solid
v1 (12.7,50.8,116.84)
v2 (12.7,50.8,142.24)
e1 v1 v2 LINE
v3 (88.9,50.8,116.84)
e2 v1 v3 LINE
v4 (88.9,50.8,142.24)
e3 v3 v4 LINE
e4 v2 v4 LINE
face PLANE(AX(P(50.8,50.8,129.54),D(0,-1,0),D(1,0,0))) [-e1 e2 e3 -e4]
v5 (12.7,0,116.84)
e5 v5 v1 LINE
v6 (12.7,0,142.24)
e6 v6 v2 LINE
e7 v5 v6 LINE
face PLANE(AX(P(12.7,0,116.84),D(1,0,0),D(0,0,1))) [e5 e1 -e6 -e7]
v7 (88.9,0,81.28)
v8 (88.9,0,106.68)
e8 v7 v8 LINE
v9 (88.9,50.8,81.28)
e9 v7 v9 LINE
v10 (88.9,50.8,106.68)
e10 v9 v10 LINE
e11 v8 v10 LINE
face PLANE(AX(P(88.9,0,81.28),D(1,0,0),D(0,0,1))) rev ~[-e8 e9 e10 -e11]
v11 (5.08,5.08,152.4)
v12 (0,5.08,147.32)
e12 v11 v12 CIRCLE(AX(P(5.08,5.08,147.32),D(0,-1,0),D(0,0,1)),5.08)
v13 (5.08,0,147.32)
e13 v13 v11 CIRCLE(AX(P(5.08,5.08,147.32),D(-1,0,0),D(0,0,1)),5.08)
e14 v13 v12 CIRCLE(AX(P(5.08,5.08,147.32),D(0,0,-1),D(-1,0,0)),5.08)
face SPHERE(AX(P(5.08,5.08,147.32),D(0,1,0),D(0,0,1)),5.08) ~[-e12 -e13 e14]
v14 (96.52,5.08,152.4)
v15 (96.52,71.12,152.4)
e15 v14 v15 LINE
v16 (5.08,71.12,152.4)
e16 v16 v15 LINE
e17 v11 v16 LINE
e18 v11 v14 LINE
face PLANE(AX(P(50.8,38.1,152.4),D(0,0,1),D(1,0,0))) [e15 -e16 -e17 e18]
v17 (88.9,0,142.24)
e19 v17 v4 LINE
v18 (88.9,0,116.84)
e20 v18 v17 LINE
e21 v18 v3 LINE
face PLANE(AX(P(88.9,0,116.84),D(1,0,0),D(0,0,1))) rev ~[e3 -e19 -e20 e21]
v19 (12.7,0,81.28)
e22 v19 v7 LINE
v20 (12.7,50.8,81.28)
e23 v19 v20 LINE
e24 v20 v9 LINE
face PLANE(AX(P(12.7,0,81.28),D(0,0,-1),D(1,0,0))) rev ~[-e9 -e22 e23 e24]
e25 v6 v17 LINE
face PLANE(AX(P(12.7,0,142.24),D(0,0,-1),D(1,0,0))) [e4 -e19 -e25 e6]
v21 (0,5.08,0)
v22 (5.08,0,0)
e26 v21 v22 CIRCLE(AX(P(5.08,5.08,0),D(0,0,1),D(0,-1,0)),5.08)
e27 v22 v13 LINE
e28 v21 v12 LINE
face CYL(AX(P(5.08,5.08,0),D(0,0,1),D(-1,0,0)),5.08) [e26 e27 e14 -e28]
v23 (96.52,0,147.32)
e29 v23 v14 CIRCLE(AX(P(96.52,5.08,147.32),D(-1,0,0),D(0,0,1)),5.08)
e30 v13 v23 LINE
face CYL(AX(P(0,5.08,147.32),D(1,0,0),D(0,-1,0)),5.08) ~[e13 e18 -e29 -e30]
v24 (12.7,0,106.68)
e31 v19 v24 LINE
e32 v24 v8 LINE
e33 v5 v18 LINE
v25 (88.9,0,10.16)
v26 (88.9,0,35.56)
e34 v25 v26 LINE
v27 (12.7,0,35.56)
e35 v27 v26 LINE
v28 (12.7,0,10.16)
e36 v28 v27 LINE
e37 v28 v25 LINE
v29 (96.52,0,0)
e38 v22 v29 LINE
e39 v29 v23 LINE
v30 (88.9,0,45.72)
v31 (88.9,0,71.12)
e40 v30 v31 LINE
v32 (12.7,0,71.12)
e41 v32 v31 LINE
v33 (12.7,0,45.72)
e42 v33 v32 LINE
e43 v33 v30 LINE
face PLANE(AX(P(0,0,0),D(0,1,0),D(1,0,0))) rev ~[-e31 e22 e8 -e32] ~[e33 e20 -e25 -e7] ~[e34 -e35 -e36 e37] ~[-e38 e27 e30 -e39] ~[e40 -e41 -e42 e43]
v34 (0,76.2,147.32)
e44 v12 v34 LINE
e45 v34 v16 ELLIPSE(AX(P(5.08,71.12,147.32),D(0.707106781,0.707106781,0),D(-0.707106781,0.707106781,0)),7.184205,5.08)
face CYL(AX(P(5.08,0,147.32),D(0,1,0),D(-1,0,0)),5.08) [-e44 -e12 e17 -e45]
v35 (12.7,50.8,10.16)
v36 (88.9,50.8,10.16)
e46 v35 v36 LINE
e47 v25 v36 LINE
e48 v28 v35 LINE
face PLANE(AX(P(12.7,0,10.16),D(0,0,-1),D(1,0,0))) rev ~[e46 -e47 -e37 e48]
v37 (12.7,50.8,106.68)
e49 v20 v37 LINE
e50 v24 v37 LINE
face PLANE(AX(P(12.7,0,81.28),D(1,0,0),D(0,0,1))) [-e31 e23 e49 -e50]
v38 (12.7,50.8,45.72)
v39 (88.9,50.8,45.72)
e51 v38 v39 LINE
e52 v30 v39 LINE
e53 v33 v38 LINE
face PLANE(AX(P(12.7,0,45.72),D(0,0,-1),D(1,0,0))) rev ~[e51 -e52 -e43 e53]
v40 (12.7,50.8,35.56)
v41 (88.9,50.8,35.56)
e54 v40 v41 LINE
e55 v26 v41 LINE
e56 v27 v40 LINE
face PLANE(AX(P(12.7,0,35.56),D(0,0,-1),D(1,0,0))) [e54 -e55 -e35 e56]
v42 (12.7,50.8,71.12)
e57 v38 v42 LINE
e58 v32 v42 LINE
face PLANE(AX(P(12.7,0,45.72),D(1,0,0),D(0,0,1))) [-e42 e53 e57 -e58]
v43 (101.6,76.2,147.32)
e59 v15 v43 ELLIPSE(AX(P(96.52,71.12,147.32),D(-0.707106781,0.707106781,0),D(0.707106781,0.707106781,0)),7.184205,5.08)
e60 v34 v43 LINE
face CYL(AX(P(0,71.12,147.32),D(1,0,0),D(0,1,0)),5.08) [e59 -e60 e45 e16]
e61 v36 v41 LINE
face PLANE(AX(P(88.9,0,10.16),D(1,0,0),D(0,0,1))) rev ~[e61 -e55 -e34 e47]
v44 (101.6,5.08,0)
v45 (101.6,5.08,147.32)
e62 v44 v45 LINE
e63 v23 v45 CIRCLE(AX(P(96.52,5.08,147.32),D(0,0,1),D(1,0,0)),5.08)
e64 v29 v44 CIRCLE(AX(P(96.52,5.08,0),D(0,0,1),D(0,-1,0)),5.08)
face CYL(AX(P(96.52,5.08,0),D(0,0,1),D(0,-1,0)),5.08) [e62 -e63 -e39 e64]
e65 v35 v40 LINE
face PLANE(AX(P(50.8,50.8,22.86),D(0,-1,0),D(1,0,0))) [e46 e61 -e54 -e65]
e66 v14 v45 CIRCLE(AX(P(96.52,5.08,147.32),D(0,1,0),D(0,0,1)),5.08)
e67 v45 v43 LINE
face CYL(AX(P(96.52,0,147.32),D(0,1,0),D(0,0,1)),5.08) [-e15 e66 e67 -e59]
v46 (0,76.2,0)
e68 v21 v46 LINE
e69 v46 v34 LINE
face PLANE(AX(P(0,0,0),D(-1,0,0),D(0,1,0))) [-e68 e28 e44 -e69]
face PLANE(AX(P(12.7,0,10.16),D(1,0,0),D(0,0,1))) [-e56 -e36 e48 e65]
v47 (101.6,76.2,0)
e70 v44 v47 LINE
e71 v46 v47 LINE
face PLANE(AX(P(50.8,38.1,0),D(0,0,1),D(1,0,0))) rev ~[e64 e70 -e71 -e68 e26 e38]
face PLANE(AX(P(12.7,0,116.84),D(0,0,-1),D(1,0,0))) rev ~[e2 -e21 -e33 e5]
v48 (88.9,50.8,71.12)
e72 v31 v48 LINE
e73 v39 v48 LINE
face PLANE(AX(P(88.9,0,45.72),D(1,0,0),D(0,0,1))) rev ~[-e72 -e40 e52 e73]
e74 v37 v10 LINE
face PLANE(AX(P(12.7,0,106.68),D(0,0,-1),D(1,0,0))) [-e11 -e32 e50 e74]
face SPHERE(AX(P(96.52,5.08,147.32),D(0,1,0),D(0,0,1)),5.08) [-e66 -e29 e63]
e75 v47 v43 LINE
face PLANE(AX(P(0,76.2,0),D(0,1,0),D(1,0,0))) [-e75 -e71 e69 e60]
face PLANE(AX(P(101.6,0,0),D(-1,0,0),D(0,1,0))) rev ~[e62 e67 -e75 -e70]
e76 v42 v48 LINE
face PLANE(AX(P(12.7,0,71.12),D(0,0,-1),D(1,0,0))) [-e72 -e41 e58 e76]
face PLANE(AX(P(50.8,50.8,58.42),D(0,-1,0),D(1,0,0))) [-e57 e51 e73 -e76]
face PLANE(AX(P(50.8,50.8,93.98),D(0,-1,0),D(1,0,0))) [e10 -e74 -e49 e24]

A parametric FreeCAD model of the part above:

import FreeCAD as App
import Part
import Sketcher

V = App.Vector
Q = App.Units.Quantity


def edges_at(feature, points):
    """Names of the edges that pass closest to the given points."""
    edges = feature.Shape.Edges
    near = lambda p: min(range(len(edges)), key=lambda i: edges[i].distToShape(Part.Vertex(*p))[0])
    return sorted({f"Edge{near(p) + 1}" for p in points})


def add_polygon(sketch, points):
    """Adds a closed chain of lines whose ends are joined by coincident constraints."""
    first, n = sketch.GeometryCount, len(points)
    for a, b in zip(points, points[1:] + points[:1]):
        sketch.addGeometry(Part.LineSegment(App.Vector(*a, 0), App.Vector(*b, 0)), False)
    for i in range(n):
        sketch.addConstraint(Sketcher.Constraint("Coincident", first + i, 2, first + (i + 1) % n, 1))

doc = App.newDocument("Part")
params = doc.addObject("Spreadsheet::Sheet", "Params")
for row, (alias, value) in enumerate([
    ("sketch1_width", "4 in"),
    ("sketch1_height", "3 in"),
    ("pad1_length", "6 in"),
    ("sketch2_width", "3 in"),
    ("sketch2_height", "1 in"),
    ("pocket1_length", "2 in"),
    ("fillet_radius", "0.2 in"),
], start=1):
    params.set(f"A{row}", alias)
    params.set(f"B{row}", "=" + value)
    params.setAlias(f"B{row}", alias)

body = doc.addObject("PartDesign::Body", "Body")

sketch1 = body.newObject("Sketcher::SketchObject", "Sketch")
sketch1.AttachmentSupport = (doc.getObject("XY_Plane"), [""])
sketch1.MapMode = "FlatFace"
add_polygon(sketch1, [(0, 76), (0, 0), (102, 0), (102, 76)])
sketch1.addConstraint(Sketcher.Constraint("Vertical", 0))
sketch1.addConstraint(Sketcher.Constraint("Horizontal", 1))
sketch1.addConstraint(Sketcher.Constraint("Vertical", 2))
sketch1.addConstraint(Sketcher.Constraint("Horizontal", 3))
sketch1.addConstraint(Sketcher.Constraint("Coincident", 0, 2, -1, 1))
sketch1.addConstraint(Sketcher.Constraint("DistanceX", 1, 1, 1, 2, Q("4 in")))
sketch1.addConstraint(Sketcher.Constraint("DistanceY", 0, 2, 0, 1, Q("3 in")))
sketch1.setExpression("Constraints[9]", "Params.sketch1_width")
sketch1.setExpression("Constraints[10]", "Params.sketch1_height")
pad1 = body.newObject("PartDesign::Pad", "Pad")
pad1.Profile = sketch1
pad1.setExpression("Length", "Params.pad1_length")

sketch2 = body.newObject("Sketcher::SketchObject", "Sketch001")
sketch2.AttachmentSupport = (doc.getObject("XZ_Plane"), [""])
sketch2.MapMode = "FlatFace"
add_polygon(sketch2, [(13, 142), (13, 117), (89, 117), (89, 142)])
add_polygon(sketch2, [(13, 107), (13, 81), (89, 81), (89, 107)])
add_polygon(sketch2, [(13, 71), (13, 46), (89, 46), (89, 71)])
add_polygon(sketch2, [(13, 36), (13, 10), (89, 10), (89, 36)])
sketch2.addConstraint(Sketcher.Constraint("Vertical", 0))
sketch2.addConstraint(Sketcher.Constraint("Horizontal", 1))
sketch2.addConstraint(Sketcher.Constraint("Vertical", 2))
sketch2.addConstraint(Sketcher.Constraint("Horizontal", 3))
sketch2.addConstraint(Sketcher.Constraint("Vertical", 4))
sketch2.addConstraint(Sketcher.Constraint("Horizontal", 5))
sketch2.addConstraint(Sketcher.Constraint("Vertical", 6))
sketch2.addConstraint(Sketcher.Constraint("Horizontal", 7))
sketch2.addConstraint(Sketcher.Constraint("Vertical", 8))
sketch2.addConstraint(Sketcher.Constraint("Horizontal", 9))
sketch2.addConstraint(Sketcher.Constraint("Vertical", 10))
sketch2.addConstraint(Sketcher.Constraint("Horizontal", 11))
sketch2.addConstraint(Sketcher.Constraint("Vertical", 12))
sketch2.addConstraint(Sketcher.Constraint("Horizontal", 13))
sketch2.addConstraint(Sketcher.Constraint("Vertical", 14))
sketch2.addConstraint(Sketcher.Constraint("Horizontal", 15))
sketch2.addConstraint(Sketcher.Constraint("Vertical", 3, 2, 4, 2))
sketch2.addConstraint(Sketcher.Constraint("Vertical", 2, 2, 5, 2))
sketch2.addConstraint(Sketcher.Constraint("Vertical", 7, 2, 8, 2))
sketch2.addConstraint(Sketcher.Constraint("Vertical", 6, 2, 9, 2))
sketch2.addConstraint(Sketcher.Constraint("Vertical", 11, 2, 12, 2))
sketch2.addConstraint(Sketcher.Constraint("Vertical", 10, 2, 13, 2))
sketch2.addConstraint(Sketcher.Constraint("Equal", 2, 4))
sketch2.addConstraint(Sketcher.Constraint("Equal", 6, 8))
sketch2.addConstraint(Sketcher.Constraint("Equal", 10, 12))
sketch2.addConstraint(Sketcher.Constraint("DistanceX", 1, 1, 1, 2, Q("3 in")))
sketch2.addConstraint(Sketcher.Constraint("DistanceY", 0, 2, 0, 1, Q("1 in")))
sketch2.addConstraint(Sketcher.Constraint("DistanceX", -1, 1, 0, 2, Q("0.5 in")))
sketch2.addConstraint(Sketcher.Constraint("DistanceY", -1, 1, 0, 2, Q("4.6 in")))
sketch2.addConstraint(Sketcher.Constraint("DistanceY", -1, 1, 4, 2, Q("3.2 in")))
sketch2.addConstraint(Sketcher.Constraint("DistanceY", -1, 1, 8, 2, Q("1.8 in")))
sketch2.addConstraint(Sketcher.Constraint("DistanceY", -1, 1, 12, 2, Q("0.4 in")))
sketch2.setExpression("Constraints[41]", "Params.sketch2_width")
sketch2.setExpression("Constraints[42]", "Params.sketch2_height")
pocket1 = body.newObject("PartDesign::Pocket", "Pocket")
pocket1.Profile = sketch2
pocket1.setExpression("Length", "Params.pocket1_length")
doc.recompute()

fillet = body.newObject("PartDesign::Fillet", "Fillet")
fillet.Base = (pocket1, edges_at(pocket1, [
    (101.6, 38.1, 152.4),
    (0, 38.1, 152.4),
    (50.8, 0, 152.4),
    (50.8, 76.2, 152.4),
    (101.6, 0, 76.2),
    (0, 0, 76.2),
]))
fillet.setExpression("Radius", "Params.fillet_radius")

doc.recompute()
